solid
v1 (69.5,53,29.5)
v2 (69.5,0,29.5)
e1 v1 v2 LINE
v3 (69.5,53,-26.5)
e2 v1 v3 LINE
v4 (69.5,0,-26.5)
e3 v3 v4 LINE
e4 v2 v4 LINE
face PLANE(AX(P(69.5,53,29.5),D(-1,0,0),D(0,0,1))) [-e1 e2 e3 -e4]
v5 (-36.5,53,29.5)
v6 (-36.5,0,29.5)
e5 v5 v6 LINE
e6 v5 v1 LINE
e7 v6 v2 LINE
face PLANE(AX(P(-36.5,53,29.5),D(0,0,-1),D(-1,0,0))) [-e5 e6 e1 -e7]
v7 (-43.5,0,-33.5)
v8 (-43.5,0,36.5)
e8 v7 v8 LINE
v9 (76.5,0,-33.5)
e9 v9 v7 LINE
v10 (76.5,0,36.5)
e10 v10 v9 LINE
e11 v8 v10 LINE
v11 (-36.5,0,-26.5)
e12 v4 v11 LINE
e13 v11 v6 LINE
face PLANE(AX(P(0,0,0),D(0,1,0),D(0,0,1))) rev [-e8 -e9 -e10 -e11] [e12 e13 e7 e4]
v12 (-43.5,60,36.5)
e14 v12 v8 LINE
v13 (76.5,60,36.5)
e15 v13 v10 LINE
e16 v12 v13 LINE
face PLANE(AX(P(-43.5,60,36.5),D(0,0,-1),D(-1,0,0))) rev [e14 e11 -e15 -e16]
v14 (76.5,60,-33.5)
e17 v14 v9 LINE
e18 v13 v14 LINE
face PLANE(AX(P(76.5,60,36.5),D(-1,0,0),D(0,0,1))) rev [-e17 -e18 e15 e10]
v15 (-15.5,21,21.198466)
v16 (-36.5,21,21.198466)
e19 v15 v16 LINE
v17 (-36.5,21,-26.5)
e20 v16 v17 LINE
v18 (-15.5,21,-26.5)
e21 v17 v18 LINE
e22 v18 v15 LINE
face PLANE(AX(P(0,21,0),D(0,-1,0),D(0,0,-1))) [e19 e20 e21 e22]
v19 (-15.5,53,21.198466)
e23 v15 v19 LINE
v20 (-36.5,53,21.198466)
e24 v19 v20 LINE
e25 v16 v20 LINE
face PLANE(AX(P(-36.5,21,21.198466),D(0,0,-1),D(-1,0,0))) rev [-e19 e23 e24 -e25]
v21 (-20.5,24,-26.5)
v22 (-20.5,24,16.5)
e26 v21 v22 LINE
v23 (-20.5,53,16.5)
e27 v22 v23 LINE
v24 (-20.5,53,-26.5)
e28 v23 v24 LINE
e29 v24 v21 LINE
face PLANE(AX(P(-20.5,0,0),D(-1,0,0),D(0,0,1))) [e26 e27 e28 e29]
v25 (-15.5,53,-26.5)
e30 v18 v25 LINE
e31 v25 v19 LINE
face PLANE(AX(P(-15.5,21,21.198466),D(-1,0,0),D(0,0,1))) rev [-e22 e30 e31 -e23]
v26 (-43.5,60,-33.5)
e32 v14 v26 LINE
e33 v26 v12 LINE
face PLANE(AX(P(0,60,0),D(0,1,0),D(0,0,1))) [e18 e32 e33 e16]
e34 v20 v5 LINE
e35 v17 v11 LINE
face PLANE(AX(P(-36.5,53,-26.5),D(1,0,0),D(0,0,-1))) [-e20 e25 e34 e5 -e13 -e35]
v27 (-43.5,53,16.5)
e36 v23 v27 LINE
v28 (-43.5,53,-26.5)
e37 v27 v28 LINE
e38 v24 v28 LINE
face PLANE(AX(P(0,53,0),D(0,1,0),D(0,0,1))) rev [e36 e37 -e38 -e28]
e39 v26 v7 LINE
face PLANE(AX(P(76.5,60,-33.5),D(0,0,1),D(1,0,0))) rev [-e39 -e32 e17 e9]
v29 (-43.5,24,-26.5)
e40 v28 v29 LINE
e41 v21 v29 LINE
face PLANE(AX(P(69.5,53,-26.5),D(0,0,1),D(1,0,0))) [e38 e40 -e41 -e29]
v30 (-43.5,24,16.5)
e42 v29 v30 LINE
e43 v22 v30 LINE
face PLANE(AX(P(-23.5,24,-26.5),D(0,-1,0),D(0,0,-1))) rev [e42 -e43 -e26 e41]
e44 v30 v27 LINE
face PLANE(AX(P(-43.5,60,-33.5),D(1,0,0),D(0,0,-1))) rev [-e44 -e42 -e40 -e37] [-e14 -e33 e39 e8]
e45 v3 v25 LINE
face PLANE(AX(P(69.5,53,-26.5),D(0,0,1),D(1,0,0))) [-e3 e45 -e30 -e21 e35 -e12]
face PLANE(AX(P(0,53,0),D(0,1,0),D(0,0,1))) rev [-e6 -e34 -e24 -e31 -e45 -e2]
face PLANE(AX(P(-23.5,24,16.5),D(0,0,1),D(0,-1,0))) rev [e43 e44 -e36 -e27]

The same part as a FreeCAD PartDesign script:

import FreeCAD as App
import Part
import Sketcher
from FreeCAD import Vector
Q = App.Units.Quantity


def add_polygon(sketch, points):
    """Adds a closed chain of lines whose ends are joined by coincident constraints."""
    first, n = sketch.GeometryCount, len(points)
    for a, b in zip(points, points[1:] + points[:1]):
        sketch.addGeometry(Part.LineSegment(App.Vector(*a, 0), App.Vector(*b, 0)), False)
    for i in range(n):
        sketch.addConstraint(Sketcher.Constraint("Coincident", first + i, 2, first + (i + 1) % n, 1))

doc = App.newDocument("Part")
params = doc.addObject("Spreadsheet::Sheet", "Params")
for row, (alias, value) in enumerate([
    ("sketch1_width", "120 mm"),
    ("sketch1_height", "70 mm"),
    ("pad1_length", "60 mm"),
    ("sketch2_width", "106 mm"),
    ("sketch2_height", "56 mm"),
    ("pocket1_length", "53 mm"),
    ("sketch3_width", "29 mm"),
    ("sketch3_height", "43 mm"),
    ("pocket2_length", "20 mm"),
    ("sketch4_width", "21 mm"),
    ("pad2_length", "32 mm"),
    ("sketch5_width", "29 mm"),
    ("sketch5_height", "43 mm"),
    ("pocket3_length", "16 mm"),
], start=1):
    params.set(f"A{row}", alias)
    params.set(f"B{row}", "=" + value)
    params.setAlias(f"B{row}", alias)

body = doc.addObject("PartDesign::Body", "Body")

sketch1 = doc.addObject("Sketcher::SketchObject", "Sketch")
body.addObject(sketch1)
sketch1.AttachmentSupport = (doc.XZ_Plane, [""])
sketch1.MapMode = "FlatFace"
add_polygon(sketch1, [(-44, -34), (-44, 36), (76, 36), (76, -34)])
sketch1.addConstraint([
    Sketcher.Constraint("Vertical", 0),
    Sketcher.Constraint("Horizontal", 1),
    Sketcher.Constraint("Vertical", 2),
    Sketcher.Constraint("Horizontal", 3),
    Sketcher.Constraint("DistanceX", 1, 1, 1, 2, Q("120 mm")),
    Sketcher.Constraint("DistanceY", 0, 1, 0, 2, Q("70 mm")),
    Sketcher.Constraint("DistanceX", 0, 2, -1, 1, Q("43.5 mm")),
    Sketcher.Constraint("DistanceY", -1, 1, 0, 2, Q("36.5 mm")),
])
sketch1.setExpression("Constraints[8]", "Params.sketch1_width")
sketch1.setExpression("Constraints[9]", "Params.sketch1_height")
pad1 = doc.addObject("PartDesign::Pad", "Pad")
body.addObject(pad1)
pad1.Profile = sketch1
pad1.setExpression("Length", "Params.pad1_length")
pad1.Reversed = True

sketch2 = doc.addObject("Sketcher::SketchObject", "Sketch001")
body.addObject(sketch2)
sketch2.AttachmentSupport = (doc.XZ_Plane, [""])
sketch2.MapMode = "FlatFace"
add_polygon(sketch2, [(-36, -26), (-36, 30), (70, 30), (70, -26)])
sketch2.addConstraint([
    Sketcher.Constraint("Vertical", 0),
    Sketcher.Constraint("Horizontal", 1),
    Sketcher.Constraint("Vertical", 2),
    Sketcher.Constraint("Horizontal", 3),
    Sketcher.Constraint("DistanceX", 1, 1, 1, 2, Q("106 mm")),
    Sketcher.Constraint("DistanceY", 0, 1, 0, 2, Q("56 mm")),
    Sketcher.Constraint("DistanceX", 0, 2, -1, 1, Q("36.5 mm")),
    Sketcher.Constraint("DistanceY", -1, 1, 0, 2, Q("29.5 mm")),
])
sketch2.setExpression("Constraints[8]", "Params.sketch2_width")
sketch2.setExpression("Constraints[9]", "Params.sketch2_height")
pocket1 = doc.addObject("PartDesign::Pocket", "Pocket")
body.addObject(pocket1)
pocket1.Profile = sketch2
pocket1.setExpression("Length", "Params.pocket1_length")

sketch3 = doc.addObject("Sketcher::SketchObject", "Sketch002")
body.addObject(sketch3)
sketch3.AttachmentSupport = (doc.YZ_Plane, [""])
sketch3.MapMode = "FlatFace"
sketch3.AttachmentOffset = App.Placement(Vector(0, 0, -43.5), App.Rotation())
add_polygon(sketch3, [(53, -26), (24, -26), (24, 16), (53, 16)])
sketch3.addConstraint([
    Sketcher.Constraint("Horizontal", 0),
    Sketcher.Constraint("Vertical", 1),
    Sketcher.Constraint("Horizontal", 2),
    Sketcher.Constraint("Vertical", 3),
    Sketcher.Constraint("DistanceX", 0, 2, 0, 1, Q("29 mm")),
    Sketcher.Constraint("DistanceY", 1, 1, 1, 2, Q("43 mm")),
    Sketcher.Constraint("DistanceX", -1, 1, 0, 2, Q("24 mm")),
    Sketcher.Constraint("DistanceY", 0, 2, -1, 1, Q("26.5 mm")),
])
sketch3.setExpression("Constraints[8]", "Params.sketch3_width")
sketch3.setExpression("Constraints[9]", "Params.sketch3_height")
pocket2 = doc.addObject("PartDesign::Pocket", "Pocket001")
body.addObject(pocket2)
pocket2.Profile = sketch3
pocket2.setExpression("Length", "Params.pocket2_length")
pocket2.Reversed = True

sketch4 = doc.addObject("Sketcher::SketchObject", "Sketch003")
body.addObject(sketch4)
sketch4.AttachmentSupport = (doc.XZ_Plane, [""])
sketch4.MapMode = "FlatFace"
sketch4.AttachmentOffset = App.Placement(Vector(0, 0, -53), App.Rotation())
add_polygon(sketch4, [(-36, 21), (-36, -26), (-16, -26), (-16, 21)])
sketch4.addConstraint([
    Sketcher.Constraint("Vertical", 0),
    Sketcher.Constraint("Horizontal", 1),
    Sketcher.Constraint("Vertical", 2),
    Sketcher.Constraint("Horizontal", 3),
    Sketcher.Constraint("DistanceX", 1, 1, 1, 2, Q("21 mm")),
    Sketcher.Constraint("DistanceX", 0, 2, -1, 1, Q("36.5 mm")),
    Sketcher.Constraint("DistanceY", 0, 2, -1, 1, Q("26.5 mm")),
    Sketcher.Constraint("DistanceY", 0, 2, 0, 1, Q("47.698466 mm")),
])
sketch4.setExpression("Constraints[8]", "Params.sketch4_width")
pad2 = doc.addObject("PartDesign::Pad", "Pad001")
body.addObject(pad2)
pad2.Profile = sketch4
pad2.setExpression("Length", "Params.pad2_length")

sketch5 = doc.addObject("Sketcher::SketchObject", "Sketch004")
body.addObject(sketch5)
sketch5.AttachmentSupport = (doc.YZ_Plane, [""])
sketch5.MapMode = "FlatFace"
sketch5.AttachmentOffset = App.Placement(Vector(0, 0, -36.5), App.Rotation())
add_polygon(sketch5, [(53, -26), (24, -26), (24, 16), (53, 16)])
sketch5.addConstraint([
    Sketcher.Constraint("Horizontal", 0),
    Sketcher.Constraint("Vertical", 1),
    Sketcher.Constraint("Horizontal", 2),
    Sketcher.Constraint("Vertical", 3),
    Sketcher.Constraint("DistanceX", 0, 2, 0, 1, Q("29 mm")),
    Sketcher.Constraint("DistanceY", 1, 1, 1, 2, Q("43 mm")),
    Sketcher.Constraint("DistanceX", -1, 1, 0, 2, Q("24 mm")),
    Sketcher.Constraint("DistanceY", 0, 2, -1, 1, Q("26.5 mm")),
])
sketch5.setExpression("Constraints[8]", "Params.sketch5_width")
sketch5.setExpression("Constraints[9]", "Params.sketch5_height")
pocket3 = doc.addObject("PartDesign::Pocket", "Pocket002")
body.addObject(pocket3)
pocket3.Profile = sketch5
pocket3.setExpression("Length", "Params.pocket3_length")
pocket3.Reversed = True

doc.recompute()
